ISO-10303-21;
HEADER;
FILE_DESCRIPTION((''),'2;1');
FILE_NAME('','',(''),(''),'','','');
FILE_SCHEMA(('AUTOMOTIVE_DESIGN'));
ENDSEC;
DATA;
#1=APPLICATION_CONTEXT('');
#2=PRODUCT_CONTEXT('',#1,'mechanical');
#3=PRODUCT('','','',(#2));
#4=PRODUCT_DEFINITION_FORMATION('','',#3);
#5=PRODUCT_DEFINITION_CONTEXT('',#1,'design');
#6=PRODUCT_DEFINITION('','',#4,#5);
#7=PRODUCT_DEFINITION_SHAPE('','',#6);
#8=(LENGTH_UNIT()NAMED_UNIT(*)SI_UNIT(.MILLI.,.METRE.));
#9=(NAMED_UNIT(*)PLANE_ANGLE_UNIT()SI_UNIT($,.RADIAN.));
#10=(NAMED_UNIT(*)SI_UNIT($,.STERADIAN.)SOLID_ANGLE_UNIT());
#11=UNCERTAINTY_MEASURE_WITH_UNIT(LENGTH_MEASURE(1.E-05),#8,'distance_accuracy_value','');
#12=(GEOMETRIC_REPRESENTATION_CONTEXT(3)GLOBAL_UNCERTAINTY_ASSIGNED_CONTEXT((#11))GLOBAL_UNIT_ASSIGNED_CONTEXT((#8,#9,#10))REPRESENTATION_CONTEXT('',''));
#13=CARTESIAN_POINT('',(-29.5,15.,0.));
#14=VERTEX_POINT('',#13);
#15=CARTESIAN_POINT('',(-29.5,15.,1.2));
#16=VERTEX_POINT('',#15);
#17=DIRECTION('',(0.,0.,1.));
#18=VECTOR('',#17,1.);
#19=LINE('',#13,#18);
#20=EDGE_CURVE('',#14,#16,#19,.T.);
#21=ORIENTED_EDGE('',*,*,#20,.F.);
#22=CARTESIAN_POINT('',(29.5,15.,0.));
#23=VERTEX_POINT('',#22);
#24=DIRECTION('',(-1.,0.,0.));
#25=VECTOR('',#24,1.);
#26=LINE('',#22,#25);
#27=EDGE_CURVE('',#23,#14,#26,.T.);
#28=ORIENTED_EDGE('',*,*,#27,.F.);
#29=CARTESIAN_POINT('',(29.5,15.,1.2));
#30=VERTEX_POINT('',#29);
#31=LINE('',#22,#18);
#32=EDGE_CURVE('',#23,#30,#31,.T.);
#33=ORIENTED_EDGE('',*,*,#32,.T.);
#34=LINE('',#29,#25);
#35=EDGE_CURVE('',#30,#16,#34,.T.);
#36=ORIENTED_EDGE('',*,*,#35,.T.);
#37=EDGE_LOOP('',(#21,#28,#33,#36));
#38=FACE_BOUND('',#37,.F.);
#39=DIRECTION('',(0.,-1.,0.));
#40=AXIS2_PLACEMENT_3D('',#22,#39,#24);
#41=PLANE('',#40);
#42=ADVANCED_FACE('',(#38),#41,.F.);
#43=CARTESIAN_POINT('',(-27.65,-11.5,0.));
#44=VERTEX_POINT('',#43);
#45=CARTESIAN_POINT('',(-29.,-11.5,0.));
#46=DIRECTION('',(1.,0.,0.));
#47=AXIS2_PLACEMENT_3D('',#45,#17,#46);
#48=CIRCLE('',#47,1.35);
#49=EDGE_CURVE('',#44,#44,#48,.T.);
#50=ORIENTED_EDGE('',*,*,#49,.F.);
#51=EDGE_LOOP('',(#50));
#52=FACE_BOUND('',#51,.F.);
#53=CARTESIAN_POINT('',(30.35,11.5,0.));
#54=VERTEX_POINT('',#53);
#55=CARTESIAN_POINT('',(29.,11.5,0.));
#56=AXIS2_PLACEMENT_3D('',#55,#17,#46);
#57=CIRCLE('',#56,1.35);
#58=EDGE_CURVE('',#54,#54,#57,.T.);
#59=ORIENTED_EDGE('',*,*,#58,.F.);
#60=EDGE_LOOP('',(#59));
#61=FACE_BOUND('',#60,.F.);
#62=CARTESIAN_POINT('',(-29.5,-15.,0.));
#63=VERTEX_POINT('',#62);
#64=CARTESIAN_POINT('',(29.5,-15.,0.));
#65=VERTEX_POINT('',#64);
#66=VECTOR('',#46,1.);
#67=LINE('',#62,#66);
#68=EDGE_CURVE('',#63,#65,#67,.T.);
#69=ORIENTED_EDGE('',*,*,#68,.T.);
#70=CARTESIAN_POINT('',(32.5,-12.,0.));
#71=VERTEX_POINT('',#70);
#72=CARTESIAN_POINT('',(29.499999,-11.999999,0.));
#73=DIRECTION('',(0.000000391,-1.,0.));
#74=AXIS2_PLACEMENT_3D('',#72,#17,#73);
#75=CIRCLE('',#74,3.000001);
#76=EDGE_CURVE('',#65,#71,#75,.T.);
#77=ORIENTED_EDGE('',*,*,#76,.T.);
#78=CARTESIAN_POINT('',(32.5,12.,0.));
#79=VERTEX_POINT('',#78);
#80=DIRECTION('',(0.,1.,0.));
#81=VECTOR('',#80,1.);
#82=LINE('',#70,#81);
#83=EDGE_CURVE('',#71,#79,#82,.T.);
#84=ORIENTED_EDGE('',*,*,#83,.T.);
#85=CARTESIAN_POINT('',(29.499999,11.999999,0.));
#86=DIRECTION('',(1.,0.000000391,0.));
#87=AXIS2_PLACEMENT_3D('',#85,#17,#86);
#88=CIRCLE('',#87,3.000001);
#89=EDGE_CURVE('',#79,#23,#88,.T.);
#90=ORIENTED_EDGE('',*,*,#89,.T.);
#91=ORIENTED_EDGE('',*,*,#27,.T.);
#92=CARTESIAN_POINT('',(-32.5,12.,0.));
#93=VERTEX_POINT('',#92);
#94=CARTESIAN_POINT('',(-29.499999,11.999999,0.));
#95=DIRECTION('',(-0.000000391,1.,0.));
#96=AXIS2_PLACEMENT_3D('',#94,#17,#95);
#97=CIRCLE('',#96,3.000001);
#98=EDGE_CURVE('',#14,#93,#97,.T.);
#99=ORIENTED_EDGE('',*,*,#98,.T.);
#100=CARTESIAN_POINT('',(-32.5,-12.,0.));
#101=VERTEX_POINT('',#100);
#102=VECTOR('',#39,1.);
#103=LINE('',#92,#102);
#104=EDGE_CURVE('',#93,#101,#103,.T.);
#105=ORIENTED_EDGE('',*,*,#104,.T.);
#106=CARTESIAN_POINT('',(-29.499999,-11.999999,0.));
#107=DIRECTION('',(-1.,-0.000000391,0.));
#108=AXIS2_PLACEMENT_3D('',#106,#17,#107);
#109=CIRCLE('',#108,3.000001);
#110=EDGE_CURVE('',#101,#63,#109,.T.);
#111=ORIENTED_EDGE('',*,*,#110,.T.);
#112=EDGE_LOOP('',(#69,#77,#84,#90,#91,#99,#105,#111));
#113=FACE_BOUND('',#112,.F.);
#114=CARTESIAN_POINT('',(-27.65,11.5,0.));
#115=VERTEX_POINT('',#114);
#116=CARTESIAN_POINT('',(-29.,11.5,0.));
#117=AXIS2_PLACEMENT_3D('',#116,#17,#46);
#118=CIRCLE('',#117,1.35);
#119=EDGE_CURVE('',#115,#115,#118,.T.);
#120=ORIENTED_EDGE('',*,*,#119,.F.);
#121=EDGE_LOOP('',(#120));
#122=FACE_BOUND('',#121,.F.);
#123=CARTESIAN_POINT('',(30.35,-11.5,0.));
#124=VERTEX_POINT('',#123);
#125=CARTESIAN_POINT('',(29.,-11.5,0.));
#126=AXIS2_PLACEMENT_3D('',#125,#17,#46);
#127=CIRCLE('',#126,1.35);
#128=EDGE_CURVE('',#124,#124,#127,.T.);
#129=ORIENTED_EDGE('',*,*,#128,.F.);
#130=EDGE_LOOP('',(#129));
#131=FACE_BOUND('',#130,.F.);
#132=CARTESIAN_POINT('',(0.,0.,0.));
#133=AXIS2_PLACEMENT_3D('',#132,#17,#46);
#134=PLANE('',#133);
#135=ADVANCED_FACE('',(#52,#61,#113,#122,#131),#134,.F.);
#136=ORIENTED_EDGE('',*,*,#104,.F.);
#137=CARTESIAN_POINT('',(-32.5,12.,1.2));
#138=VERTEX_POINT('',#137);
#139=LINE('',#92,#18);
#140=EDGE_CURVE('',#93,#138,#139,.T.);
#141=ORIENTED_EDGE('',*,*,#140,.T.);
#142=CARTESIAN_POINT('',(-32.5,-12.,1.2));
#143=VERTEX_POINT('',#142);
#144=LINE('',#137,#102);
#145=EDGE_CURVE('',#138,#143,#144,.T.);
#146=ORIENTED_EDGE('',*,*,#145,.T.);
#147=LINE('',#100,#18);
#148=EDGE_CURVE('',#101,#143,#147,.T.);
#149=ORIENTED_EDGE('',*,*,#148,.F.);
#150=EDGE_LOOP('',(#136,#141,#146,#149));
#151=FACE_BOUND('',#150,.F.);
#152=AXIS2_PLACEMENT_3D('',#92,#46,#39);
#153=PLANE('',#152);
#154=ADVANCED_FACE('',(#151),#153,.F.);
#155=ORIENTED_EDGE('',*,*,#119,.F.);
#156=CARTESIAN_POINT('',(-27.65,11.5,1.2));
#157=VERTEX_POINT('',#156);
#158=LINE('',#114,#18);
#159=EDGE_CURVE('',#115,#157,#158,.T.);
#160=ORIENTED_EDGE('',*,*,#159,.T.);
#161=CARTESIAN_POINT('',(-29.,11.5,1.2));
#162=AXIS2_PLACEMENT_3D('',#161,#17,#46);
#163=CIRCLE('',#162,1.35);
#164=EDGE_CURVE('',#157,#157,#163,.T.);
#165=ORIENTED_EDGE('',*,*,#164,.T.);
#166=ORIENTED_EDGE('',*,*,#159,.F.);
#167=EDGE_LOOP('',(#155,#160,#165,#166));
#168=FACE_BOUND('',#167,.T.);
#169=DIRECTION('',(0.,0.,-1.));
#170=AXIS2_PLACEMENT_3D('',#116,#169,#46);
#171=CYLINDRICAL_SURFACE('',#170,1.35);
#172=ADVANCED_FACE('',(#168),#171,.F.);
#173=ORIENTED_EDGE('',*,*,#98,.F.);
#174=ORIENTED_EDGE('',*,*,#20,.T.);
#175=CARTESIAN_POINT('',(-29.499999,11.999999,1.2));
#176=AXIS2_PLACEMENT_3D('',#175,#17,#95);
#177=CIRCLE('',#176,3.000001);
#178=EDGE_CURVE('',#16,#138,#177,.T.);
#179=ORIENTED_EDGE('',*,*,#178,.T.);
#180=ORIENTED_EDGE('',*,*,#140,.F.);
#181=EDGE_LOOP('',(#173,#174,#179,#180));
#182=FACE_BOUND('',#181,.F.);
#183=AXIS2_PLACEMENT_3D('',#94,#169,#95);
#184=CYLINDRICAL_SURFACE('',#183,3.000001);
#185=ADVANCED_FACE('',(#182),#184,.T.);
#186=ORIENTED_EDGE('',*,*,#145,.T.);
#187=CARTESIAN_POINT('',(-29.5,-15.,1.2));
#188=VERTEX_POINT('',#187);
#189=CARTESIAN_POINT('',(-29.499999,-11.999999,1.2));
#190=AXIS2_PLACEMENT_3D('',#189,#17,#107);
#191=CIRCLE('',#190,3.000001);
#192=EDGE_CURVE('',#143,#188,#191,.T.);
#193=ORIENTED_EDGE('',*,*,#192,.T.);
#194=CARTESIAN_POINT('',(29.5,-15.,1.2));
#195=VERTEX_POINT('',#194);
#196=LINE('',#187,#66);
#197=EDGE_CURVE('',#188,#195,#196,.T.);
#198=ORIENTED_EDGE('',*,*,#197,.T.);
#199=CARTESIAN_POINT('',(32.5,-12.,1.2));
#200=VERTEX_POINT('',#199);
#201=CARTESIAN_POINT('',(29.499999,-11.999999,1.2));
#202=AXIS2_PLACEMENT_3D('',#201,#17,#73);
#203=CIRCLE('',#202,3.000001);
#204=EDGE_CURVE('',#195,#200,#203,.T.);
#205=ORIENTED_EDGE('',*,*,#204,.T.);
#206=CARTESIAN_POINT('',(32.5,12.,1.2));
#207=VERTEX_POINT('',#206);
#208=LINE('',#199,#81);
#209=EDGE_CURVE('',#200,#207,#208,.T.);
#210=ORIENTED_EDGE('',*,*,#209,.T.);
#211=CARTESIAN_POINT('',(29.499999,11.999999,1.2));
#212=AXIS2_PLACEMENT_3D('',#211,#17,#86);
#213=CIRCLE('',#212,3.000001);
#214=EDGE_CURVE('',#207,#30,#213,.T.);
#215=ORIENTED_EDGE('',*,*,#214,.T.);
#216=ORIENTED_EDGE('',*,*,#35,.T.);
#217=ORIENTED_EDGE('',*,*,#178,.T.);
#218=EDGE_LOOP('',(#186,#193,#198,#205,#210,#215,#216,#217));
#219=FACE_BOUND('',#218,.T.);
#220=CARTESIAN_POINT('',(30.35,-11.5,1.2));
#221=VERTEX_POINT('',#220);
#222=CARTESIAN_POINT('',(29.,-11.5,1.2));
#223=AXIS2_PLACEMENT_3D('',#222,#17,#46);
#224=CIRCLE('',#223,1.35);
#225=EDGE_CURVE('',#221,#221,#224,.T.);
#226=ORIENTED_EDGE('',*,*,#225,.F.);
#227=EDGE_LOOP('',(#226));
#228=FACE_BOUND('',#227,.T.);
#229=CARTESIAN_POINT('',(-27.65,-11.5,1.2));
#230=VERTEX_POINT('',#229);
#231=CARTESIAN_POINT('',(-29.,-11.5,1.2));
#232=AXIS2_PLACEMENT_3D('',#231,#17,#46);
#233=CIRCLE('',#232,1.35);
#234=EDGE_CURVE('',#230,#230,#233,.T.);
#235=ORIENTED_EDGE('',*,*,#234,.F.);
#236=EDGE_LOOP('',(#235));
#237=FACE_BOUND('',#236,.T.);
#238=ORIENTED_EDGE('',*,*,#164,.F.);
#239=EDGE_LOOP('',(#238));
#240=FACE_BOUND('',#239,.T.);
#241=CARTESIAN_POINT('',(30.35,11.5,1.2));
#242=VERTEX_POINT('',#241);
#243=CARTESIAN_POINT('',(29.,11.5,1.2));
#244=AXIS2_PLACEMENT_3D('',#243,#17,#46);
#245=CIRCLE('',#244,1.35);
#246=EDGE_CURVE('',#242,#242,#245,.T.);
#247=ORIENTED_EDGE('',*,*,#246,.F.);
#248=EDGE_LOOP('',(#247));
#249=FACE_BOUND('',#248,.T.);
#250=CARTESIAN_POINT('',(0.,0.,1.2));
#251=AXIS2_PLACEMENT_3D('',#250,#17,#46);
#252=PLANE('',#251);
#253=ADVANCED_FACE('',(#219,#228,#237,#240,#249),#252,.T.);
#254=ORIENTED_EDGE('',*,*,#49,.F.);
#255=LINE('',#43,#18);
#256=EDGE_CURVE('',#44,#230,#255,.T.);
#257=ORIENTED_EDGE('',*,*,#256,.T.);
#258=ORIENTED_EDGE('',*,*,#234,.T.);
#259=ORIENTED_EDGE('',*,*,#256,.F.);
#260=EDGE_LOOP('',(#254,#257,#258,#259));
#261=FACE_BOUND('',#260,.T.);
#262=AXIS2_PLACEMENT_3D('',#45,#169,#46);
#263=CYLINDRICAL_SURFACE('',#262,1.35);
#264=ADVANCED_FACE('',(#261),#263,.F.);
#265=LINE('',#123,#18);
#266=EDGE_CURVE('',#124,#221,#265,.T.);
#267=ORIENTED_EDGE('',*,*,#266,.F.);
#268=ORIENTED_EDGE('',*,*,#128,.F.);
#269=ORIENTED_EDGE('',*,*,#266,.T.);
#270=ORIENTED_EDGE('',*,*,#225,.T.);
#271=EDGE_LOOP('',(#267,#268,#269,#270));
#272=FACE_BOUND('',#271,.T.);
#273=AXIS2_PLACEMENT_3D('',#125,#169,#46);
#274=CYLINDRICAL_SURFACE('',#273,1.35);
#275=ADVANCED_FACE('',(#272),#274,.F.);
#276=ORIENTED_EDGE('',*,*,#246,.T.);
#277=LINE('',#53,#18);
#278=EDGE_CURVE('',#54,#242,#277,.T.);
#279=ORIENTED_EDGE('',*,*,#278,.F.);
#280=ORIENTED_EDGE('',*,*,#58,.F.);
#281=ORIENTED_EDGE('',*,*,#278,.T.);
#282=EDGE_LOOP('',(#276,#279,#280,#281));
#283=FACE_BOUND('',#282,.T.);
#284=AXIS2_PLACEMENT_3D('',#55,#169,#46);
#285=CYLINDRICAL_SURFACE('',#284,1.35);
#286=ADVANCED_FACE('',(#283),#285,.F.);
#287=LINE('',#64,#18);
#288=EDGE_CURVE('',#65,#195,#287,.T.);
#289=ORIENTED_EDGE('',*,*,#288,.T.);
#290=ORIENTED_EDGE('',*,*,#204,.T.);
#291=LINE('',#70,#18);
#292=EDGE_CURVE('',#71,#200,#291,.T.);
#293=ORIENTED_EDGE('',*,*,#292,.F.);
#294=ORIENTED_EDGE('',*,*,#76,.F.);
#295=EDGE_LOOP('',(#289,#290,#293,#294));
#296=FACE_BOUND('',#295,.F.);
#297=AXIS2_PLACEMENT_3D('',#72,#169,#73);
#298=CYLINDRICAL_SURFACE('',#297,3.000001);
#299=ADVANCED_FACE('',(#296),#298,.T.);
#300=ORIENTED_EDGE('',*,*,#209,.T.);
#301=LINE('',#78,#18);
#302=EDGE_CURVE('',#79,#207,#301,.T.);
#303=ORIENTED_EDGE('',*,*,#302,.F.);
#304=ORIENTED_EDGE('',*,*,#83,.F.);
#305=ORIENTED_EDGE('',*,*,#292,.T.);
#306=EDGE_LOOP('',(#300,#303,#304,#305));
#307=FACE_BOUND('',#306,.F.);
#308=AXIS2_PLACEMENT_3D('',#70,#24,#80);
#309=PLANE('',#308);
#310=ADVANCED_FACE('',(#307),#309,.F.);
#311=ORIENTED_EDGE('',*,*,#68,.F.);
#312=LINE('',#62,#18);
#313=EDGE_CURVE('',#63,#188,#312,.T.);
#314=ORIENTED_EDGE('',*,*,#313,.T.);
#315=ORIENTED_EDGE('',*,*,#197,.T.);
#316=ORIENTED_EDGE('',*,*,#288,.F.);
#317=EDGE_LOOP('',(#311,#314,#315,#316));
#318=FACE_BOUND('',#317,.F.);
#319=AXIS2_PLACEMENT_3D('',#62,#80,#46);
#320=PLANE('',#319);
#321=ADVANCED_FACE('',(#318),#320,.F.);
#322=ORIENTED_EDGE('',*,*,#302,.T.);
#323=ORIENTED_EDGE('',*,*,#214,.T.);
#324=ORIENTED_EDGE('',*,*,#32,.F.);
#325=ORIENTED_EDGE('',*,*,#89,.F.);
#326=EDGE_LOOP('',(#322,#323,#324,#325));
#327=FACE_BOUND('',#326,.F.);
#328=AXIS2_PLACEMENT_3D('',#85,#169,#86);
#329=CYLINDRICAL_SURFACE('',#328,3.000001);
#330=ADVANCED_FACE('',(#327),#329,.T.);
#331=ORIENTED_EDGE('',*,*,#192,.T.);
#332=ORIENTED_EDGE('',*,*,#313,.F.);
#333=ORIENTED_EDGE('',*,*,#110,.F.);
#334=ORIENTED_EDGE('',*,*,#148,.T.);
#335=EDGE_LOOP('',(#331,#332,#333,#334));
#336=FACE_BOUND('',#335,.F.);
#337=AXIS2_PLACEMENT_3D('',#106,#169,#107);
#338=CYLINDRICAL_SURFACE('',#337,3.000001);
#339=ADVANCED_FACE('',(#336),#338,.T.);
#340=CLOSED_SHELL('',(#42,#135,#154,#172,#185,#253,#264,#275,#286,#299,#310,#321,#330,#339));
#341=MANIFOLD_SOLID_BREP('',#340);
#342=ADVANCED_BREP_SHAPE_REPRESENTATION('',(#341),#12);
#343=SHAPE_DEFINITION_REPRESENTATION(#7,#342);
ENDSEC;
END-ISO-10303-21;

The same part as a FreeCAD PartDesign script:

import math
import FreeCAD as App
import Part
import Sketcher

V = App.Vector
Q = App.Units.Quantity

doc = App.newDocument("Part")
body = doc.addObject("PartDesign::Body", "Body")

sketch1 = doc.addObject("Sketcher::SketchObject", "Sketch")
body.addObject(sketch1)
sketch1.AttachmentSupport = (doc.XY_Plane, [""])
sketch1.MapMode = "FlatFace"
sketch1.addGeometry(Part.LineSegment(V(-32.5, 12, 0), V(-32.5, -12, 0)), False)
sketch1.addGeometry(Part.ArcOfCircle(Part.Circle(V(-29.5, -12, 0), V(0, 0, 1), 3), math.radians(-180), math.radians(-90)), False)
sketch1.addGeometry(Part.LineSegment(V(-29.5, -15, 0), V(29.5, -15, 0)), False)
sketch1.addGeometry(Part.ArcOfCircle(Part.Circle(V(29.5, -12, 0), V(0, 0, 1), 3), math.radians(-90), math.radians(0)), False)
sketch1.addGeometry(Part.LineSegment(V(32.5, -12, 0), V(32.5, 12, 0)), False)
sketch1.addGeometry(Part.ArcOfCircle(Part.Circle(V(29.5, 12, 0), V(0, 0, 1), 3), math.radians(0), math.radians(90)), False)
sketch1.addGeometry(Part.LineSegment(V(29.5, 15, 0), V(-29.5, 15, 0)), False)
sketch1.addGeometry(Part.ArcOfCircle(Part.Circle(V(-29.5, 12, 0), V(0, 0, 1), 3), math.radians(90), math.radians(180)), False)
sketch1.addGeometry(Part.Circle(V(-29, -11.5, 0), V(0, 0, 1), 1.4), False)
sketch1.addGeometry(Part.Circle(V(29, -11.5, 0), V(0, 0, 1), 1.4), False)
sketch1.addGeometry(Part.Circle(V(-29, 11.5, 0), V(0, 0, 1), 1.4), False)
sketch1.addGeometry(Part.Circle(V(29, 11.5, 0), V(0, 0, 1), 1.4), False)
sketch1.addConstraint(Sketcher.Constraint("Tangent", 0, 2, 1, 1))
sketch1.addConstraint(Sketcher.Constraint("Tangent", 1, 2, 2, 1))
sketch1.addConstraint(Sketcher.Constraint("Tangent", 2, 2, 3, 1))
sketch1.addConstraint(Sketcher.Constraint("Tangent", 3, 2, 4, 1))
sketch1.addConstraint(Sketcher.Constraint("Tangent", 4, 2, 5, 1))
sketch1.addConstraint(Sketcher.Constraint("Tangent", 5, 2, 6, 1))
sketch1.addConstraint(Sketcher.Constraint("Tangent", 6, 2, 7, 1))
sketch1.addConstraint(Sketcher.Constraint("Tangent", 7, 2, 0, 1))
sketch1.addConstraint(Sketcher.Constraint("Vertical", 0))
sketch1.addConstraint(Sketcher.Constraint("Horizontal", 2))
sketch1.addConstraint(Sketcher.Constraint("Vertical", 4))
sketch1.addConstraint(Sketcher.Constraint("Horizontal", 6))
sketch1.addConstraint(Sketcher.Constraint("Equal", 1, 3))
sketch1.addConstraint(Sketcher.Constraint("Equal", 3, 5))
sketch1.addConstraint(Sketcher.Constraint("Equal", 5, 7))
sketch1.addConstraint(Sketcher.Constraint("Equal", 8, 9))
sketch1.addConstraint(Sketcher.Constraint("Equal", 9, 10))
sketch1.addConstraint(Sketcher.Constraint("Equal", 10, 11))
sketch1.addConstraint(Sketcher.Constraint("Symmetric", 1, 3, 5, 3, -1, 1))
sketch1.addConstraint(Sketcher.Constraint("Symmetric", 9, 3, 10, 3, -1, 1))
sketch1.addConstraint(Sketcher.Constraint("Symmetric", 8, 3, 11, 3, -1, 1))
sketch1.addConstraint(Sketcher.Constraint("Symmetric", 8, 3, 9, 3, -2))
sketch1.addConstraint(Sketcher.Constraint("Radius", 1, Q("3.000001 mm")))
sketch1.addConstraint(Sketcher.Constraint("Diameter", 8, Q("2.7 mm")))
sketch1.addConstraint(Sketcher.Constraint("DistanceX", 2, 1, 2, 2, Q("59 mm")))
sketch1.addConstraint(Sketcher.Constraint("DistanceY", 0, 2, 0, 1, Q("24 mm")))
sketch1.addConstraint(Sketcher.Constraint("DistanceX", 8, 3, -1, 1, Q("29 mm")))
sketch1.addConstraint(Sketcher.Constraint("DistanceY", 8, 3, 10, 3, Q("23 mm")))
pad1 = doc.addObject("PartDesign::Pad", "Pad")
body.addObject(pad1)
pad1.Profile = sketch1
pad1.Length = 1.2

sketch2 = doc.addObject("Sketcher::SketchObject", "Sketch001")
body.addObject(sketch2)
sketch2.AttachmentSupport = (doc.XY_Plane, [""])
sketch2.MapMode = "FlatFace"
sketch2.addGeometry(Part.Circle(V(-22.5, 12.75, 0), V(0, 0, 1), 0.4), False)
sketch2.addGeometry(Part.Circle(V(-22.5, 10.25, 0), V(0, 0, 1), 0.4), False)
sketch2.addConstraint(Sketcher.Constraint("Equal", 0, 1))
sketch2.addConstraint(Sketcher.Constraint("Vertical", 0, 3, 1, 3))
sketch2.addConstraint(Sketcher.Constraint("Diameter", 0, Q("0.8 mm")))
sketch2.addConstraint(Sketcher.Constraint("DistanceX", 0, 3, -1, 1, Q("22.5 mm")))
sketch2.addConstraint(Sketcher.Constraint("DistanceY", 1, 3, 0, 3, Q("2.5 mm")))
sketch2.addConstraint(Sketcher.Constraint("DistanceY", -1, 1, 0, 3, Q("12.75 mm")))
pocket1 = doc.addObject("PartDesign::Pocket", "Pocket")
body.addObject(pocket1)
pocket1.Profile = sketch2
pocket1.Type = "ThroughAll"
doc.recompute()

linearpattern = doc.addObject("PartDesign::LinearPattern", "LinearPattern")
body.addObject(linearpattern)
linearpattern.Originals = [pocket1]
linearpattern.Direction = (doc.X_Axis, [""])
linearpattern.Mode = "offset"
linearpattern.Offset = 2.368421
linearpattern.Occurrences = 20
body.Tip = linearpattern

doc.recompute()
